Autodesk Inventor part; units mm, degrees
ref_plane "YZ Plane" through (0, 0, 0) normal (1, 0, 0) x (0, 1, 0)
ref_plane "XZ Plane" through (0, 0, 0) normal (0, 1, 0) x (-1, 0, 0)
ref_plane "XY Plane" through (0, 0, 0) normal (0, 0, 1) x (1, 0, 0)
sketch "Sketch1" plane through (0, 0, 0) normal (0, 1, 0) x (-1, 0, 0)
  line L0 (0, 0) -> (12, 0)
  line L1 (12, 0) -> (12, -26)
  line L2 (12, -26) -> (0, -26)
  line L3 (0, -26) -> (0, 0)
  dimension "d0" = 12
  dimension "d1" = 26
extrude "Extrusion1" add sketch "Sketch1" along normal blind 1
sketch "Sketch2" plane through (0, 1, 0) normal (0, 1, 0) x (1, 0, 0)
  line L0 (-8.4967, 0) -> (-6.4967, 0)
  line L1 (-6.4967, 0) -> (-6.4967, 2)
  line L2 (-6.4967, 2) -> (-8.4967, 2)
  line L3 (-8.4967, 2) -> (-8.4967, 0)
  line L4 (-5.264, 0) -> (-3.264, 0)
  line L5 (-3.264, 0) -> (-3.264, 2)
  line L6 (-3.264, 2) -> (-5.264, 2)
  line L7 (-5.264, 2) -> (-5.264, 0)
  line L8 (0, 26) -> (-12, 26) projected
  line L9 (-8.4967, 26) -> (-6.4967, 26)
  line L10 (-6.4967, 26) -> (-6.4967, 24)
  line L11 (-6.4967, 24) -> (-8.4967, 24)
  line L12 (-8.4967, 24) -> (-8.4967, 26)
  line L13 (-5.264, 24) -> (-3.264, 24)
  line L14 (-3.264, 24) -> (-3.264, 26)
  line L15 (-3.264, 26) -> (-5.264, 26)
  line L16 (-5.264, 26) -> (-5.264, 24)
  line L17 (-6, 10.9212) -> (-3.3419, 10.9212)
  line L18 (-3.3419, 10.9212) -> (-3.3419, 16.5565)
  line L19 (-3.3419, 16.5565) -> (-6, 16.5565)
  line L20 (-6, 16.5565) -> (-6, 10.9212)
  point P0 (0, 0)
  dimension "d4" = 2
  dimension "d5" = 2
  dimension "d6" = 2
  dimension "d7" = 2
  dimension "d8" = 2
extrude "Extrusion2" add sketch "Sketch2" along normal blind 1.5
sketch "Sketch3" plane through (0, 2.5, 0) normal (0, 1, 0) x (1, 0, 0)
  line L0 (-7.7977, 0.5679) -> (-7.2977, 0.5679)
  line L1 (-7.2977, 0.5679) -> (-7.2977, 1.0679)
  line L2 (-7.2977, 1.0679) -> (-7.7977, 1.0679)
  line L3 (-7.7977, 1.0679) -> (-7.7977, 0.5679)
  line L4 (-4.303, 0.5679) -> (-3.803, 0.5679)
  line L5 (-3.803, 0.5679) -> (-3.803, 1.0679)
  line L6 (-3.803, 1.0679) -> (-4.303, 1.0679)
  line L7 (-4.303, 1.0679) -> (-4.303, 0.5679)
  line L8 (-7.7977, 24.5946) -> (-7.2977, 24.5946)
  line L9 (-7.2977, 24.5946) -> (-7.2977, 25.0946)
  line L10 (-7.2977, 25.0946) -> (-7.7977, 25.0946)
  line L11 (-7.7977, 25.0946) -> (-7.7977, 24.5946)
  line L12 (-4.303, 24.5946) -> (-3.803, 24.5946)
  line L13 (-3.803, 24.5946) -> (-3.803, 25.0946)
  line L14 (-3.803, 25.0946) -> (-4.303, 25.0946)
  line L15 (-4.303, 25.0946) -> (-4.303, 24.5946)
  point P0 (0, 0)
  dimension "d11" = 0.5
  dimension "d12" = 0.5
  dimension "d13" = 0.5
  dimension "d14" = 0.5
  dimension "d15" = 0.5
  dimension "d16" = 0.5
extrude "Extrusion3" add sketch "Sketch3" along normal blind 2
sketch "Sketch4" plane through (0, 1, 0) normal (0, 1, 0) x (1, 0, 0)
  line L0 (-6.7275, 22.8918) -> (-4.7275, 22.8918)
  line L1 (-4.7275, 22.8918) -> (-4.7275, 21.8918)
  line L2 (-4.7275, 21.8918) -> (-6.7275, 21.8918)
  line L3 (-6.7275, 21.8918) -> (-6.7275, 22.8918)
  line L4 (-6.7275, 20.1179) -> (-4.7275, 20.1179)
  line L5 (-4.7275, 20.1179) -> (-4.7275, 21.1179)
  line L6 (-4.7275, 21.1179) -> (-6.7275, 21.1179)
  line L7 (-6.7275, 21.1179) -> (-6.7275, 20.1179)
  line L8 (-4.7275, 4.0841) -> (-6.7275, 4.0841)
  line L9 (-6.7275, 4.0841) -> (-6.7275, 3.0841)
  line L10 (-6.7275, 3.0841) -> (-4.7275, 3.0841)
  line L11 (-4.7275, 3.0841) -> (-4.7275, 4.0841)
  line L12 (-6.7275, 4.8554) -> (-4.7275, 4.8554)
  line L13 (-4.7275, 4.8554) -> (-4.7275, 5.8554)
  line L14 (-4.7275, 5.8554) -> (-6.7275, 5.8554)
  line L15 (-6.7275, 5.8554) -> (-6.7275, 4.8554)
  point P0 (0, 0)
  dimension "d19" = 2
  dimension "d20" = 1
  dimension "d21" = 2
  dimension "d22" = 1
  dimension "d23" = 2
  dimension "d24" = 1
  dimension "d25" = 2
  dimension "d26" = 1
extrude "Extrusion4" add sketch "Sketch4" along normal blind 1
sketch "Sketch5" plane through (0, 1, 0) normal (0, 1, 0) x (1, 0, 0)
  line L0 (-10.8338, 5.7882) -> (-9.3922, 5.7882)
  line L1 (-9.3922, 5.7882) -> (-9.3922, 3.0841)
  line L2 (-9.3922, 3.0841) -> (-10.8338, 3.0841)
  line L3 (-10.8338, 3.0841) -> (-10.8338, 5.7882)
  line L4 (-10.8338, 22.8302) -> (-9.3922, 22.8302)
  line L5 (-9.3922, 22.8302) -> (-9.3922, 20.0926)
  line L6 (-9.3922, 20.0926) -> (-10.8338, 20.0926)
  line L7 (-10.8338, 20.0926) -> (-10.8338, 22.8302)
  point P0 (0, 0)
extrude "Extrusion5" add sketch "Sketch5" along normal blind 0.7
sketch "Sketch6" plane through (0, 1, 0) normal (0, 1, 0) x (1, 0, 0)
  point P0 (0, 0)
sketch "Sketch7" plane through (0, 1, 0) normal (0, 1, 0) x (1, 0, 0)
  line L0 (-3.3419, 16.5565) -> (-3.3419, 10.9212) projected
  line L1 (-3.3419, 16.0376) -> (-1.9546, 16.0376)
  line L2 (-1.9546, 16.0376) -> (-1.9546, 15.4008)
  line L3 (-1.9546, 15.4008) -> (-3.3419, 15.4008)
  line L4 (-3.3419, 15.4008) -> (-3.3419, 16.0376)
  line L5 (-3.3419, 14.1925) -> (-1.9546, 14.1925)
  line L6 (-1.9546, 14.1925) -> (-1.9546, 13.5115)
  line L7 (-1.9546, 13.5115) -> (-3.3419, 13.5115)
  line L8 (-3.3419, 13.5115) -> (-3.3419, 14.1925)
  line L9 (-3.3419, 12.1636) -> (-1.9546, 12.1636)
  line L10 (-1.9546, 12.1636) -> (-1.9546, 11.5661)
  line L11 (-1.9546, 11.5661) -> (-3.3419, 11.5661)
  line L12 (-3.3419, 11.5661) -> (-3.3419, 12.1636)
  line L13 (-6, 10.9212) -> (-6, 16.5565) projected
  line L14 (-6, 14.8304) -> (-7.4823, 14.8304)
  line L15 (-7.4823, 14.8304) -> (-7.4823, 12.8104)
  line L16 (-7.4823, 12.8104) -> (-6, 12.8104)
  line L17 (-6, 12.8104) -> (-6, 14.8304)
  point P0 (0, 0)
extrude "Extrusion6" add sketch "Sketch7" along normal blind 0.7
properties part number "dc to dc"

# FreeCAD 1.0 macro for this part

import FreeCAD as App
import Part
import Sketcher

V = App.Vector
Q = App.Units.Quantity


def add_polygon(sketch, points):
    """Adds a closed chain of lines whose ends are joined by coincident constraints."""
    first, n = sketch.GeometryCount, len(points)
    for a, b in zip(points, points[1:] + points[:1]):
        sketch.addGeometry(Part.LineSegment(App.Vector(*a, 0), App.Vector(*b, 0)), False)
    for i in range(n):
        sketch.addConstraint(Sketcher.Constraint("Coincident", first + i, 2, first + (i + 1) % n, 1))

doc = App.newDocument("Part")
body = doc.addObject("PartDesign::Body", "Body")

# Sketch on XZ plane
sketch1 = doc.addObject("Sketcher::SketchObject", "Sketch")
body.addObject(sketch1)
sketch1.AttachmentSupport = (doc.XZ_Plane, [""])
sketch1.MapMode = "FlatFace"
add_polygon(sketch1, [(-12, 0), (0, 0), (0, -26), (-12, -26)])  # lines 0-3
sketch1.addConstraint([
    Sketcher.Constraint("Horizontal", 0),
    Sketcher.Constraint("Vertical", 1),
    Sketcher.Constraint("Horizontal", 2),
    Sketcher.Constraint("Vertical", 3),
    Sketcher.Constraint("Coincident", 0, 2, -1, 1),
    Sketcher.Constraint("DistanceX", 0, 1, 0, 2, Q("12 mm")),
    Sketcher.Constraint("DistanceY", 1, 2, 1, 1, Q("26 mm")),
])
pad1 = doc.addObject("PartDesign::Pad", "Pad")
body.addObject(pad1)
pad1.Profile = sketch1
pad1.Length = 1
pad1.Reversed = True

# Sketch on XZ plane
sketch2 = doc.addObject("Sketcher::SketchObject", "Sketch001")
body.addObject(sketch2)
sketch2.AttachmentSupport = (doc.XZ_Plane, [""])
sketch2.MapMode = "FlatFace"
sketch2.AttachmentOffset = App.Placement(V(0, 0, -1), App.Rotation())
add_polygon(sketch2, [(-8.5, -2), (-8.5, 0), (-6.5, 0), (-6.5, -2)])  # lines 0-3
add_polygon(sketch2, [(-5.3, -2), (-5.3, 0), (-3.3, 0), (-3.3, -2)])  # lines 4-7
add_polygon(sketch2, [(-3.3, -24), (-3.3, -26), (-5.3, -26), (-5.3, -24)])  # lines 8-11
add_polygon(sketch2, [(-6.5, -24), (-6.5, -26), (-8.5, -26), (-8.5, -24)])  # lines 12-15
add_polygon(sketch2, [(-6, -16.6), (-6, -10.9), (-3.3, -10.9), (-3.3, -16.6)])  # lines 16-19
sketch2.addConstraint([
    Sketcher.Constraint("Vertical", 0),
    Sketcher.Constraint("Horizontal", 1),
    Sketcher.Constraint("Vertical", 2),
    Sketcher.Constraint("Horizontal", 3),
    Sketcher.Constraint("Vertical", 4),
    Sketcher.Constraint("Horizontal", 5),
    Sketcher.Constraint("Vertical", 6),
    Sketcher.Constraint("Horizontal", 7),
    Sketcher.Constraint("Vertical", 8),
    Sketcher.Constraint("Horizontal", 9),
    Sketcher.Constraint("Vertical", 10),
    Sketcher.Constraint("Horizontal", 11),
    Sketcher.Constraint("Vertical", 12),
    Sketcher.Constraint("Horizontal", 13),
    Sketcher.Constraint("Vertical", 14),
    Sketcher.Constraint("Horizontal", 15),
    Sketcher.Constraint("Vertical", 16),
    Sketcher.Constraint("Horizontal", 17),
    Sketcher.Constraint("Vertical", 18),
    Sketcher.Constraint("Horizontal", 19),
    Sketcher.Constraint("PointOnObject", 0, 2, -1),
    Sketcher.Constraint("PointOnObject", 4, 2, -1),
    Sketcher.Constraint("Horizontal", 3, 2, 6, 2),
    Sketcher.Constraint("Horizontal", 9, 2, 12, 2),
    Sketcher.Constraint("Horizontal", 11, 2, 14, 2),
    Sketcher.Constraint("Vertical", 6, 2, 8, 2),
    Sketcher.Constraint("Vertical", 7, 2, 9, 2),
    Sketcher.Constraint("Vertical", 2, 2, 12, 2),
    Sketcher.Constraint("Vertical", 3, 2, 13, 2),
    Sketcher.Constraint("Equal", 3, 5),
    Sketcher.Constraint("Equal", 15, 0),
    Sketcher.Constraint("Equal", 6, 8),
    Sketcher.Constraint("DistanceX", 1, 1, 1, 2, Q("2 mm")),
    Sketcher.Constraint("DistanceY", 8, 2, -1, 1, Q("26 mm")),
    Sketcher.Constraint("DistanceX", 16, 2, -1, 1, Q("6 mm")),
    Sketcher.Constraint("DistanceX", 17, 1, 17, 2, Q("2.658 mm")),
    Sketcher.Constraint("DistanceY", 16, 1, 16, 2, Q("5.6353 mm")),
    Sketcher.Constraint("DistanceX", 4, 2, -1, 1, Q("5.264 mm")),
    Sketcher.Constraint("DistanceX", 0, 2, -1, 1, Q("8.4967 mm")),
    Sketcher.Constraint("DistanceY", 16, 2, -1, 1, Q("10.9212 mm")),
])
pad2 = doc.addObject("PartDesign::Pad", "Pad001")
body.addObject(pad2)
pad2.Profile = sketch2
pad2.Length = 1.5
pad2.Reversed = True

# Sketch on XZ plane
sketch3 = doc.addObject("Sketcher::SketchObject", "Sketch002")
body.addObject(sketch3)
sketch3.AttachmentSupport = (doc.XZ_Plane, [""])
sketch3.MapMode = "FlatFace"
sketch3.AttachmentOffset = App.Placement(V(0, 0, -2.5), App.Rotation())
add_polygon(sketch3, [(-7.8, -1.1), (-7.8, -0.6), (-7.3, -0.6), (-7.3, -1.1)])  # lines 0-3
add_polygon(sketch3, [(-4.3, -1.1), (-4.3, -0.6), (-3.8, -0.6), (-3.8, -1.1)])  # lines 4-7
add_polygon(sketch3, [(-7.8, -25.1), (-7.8, -24.6), (-7.3, -24.6), (-7.3, -25.1)])  # lines 8-11
add_polygon(sketch3, [(-4.3, -25.1), (-4.3, -24.6), (-3.8, -24.6), (-3.8, -25.1)])  # lines 12-15
sketch3.addConstraint([
    Sketcher.Constraint("Vertical", 0),
    Sketcher.Constraint("Horizontal", 1),
    Sketcher.Constraint("Vertical", 2),
    Sketcher.Constraint("Horizontal", 3),
    Sketcher.Constraint("Vertical", 4),
    Sketcher.Constraint("Horizontal", 5),
    Sketcher.Constraint("Vertical", 6),
    Sketcher.Constraint("Horizontal", 7),
    Sketcher.Constraint("Vertical", 8),
    Sketcher.Constraint("Horizontal", 9),
    Sketcher.Constraint("Vertical", 10),
    Sketcher.Constraint("Horizontal", 11),
    Sketcher.Constraint("Vertical", 12),
    Sketcher.Constraint("Horizontal", 13),
    Sketcher.Constraint("Vertical", 14),
    Sketcher.Constraint("Horizontal", 15),
    Sketcher.Constraint("Horizontal", 1, 2, 4, 2),
    Sketcher.Constraint("Horizontal", 3, 2, 6, 2),
    Sketcher.Constraint("Horizontal", 9, 2, 12, 2),
    Sketcher.Constraint("Horizontal", 11, 2, 14, 2),
    Sketcher.Constraint("Vertical", 3, 2, 8, 2),
    Sketcher.Constraint("Vertical", 2, 2, 9, 2),
    Sketcher.Constraint("Vertical", 7, 2, 12, 2),
    Sketcher.Constraint("Vertical", 6, 2, 13, 2),
    Sketcher.Constraint("Equal", 3, 5),
    Sketcher.Constraint("Equal", 15, 0),
    Sketcher.Constraint("Equal", 6, 8),
    Sketcher.Constraint("DistanceX", 1, 1, 1, 2, Q("0.5 mm")),
    Sketcher.Constraint("DistanceY", 0, 2, -1, 1, Q("0.568 mm")),
    Sketcher.Constraint("DistanceX", 4, 2, -1, 1, Q("4.303 mm")),
    Sketcher.Constraint("DistanceX", 0, 2, -1, 1, Q("7.7977 mm")),
    Sketcher.Constraint("DistanceY", 8, 2, -1, 1, Q("24.5946 mm")),
])
pad3 = doc.addObject("PartDesign::Pad", "Pad002")
body.addObject(pad3)
pad3.Profile = sketch3
pad3.Length = 2
pad3.Reversed = True

# Sketch on XZ plane
sketch4 = doc.addObject("Sketcher::SketchObject", "Sketch003")
body.addObject(sketch4)
sketch4.AttachmentSupport = (doc.XZ_Plane, [""])
sketch4.MapMode = "FlatFace"
sketch4.AttachmentOffset = App.Placement(V(0, 0, -1), App.Rotation())
add_polygon(sketch4, [(-4.7, -22.9), (-6.7, -22.9), (-6.7, -21.9), (-4.7, -21.9)])  # lines 0-3
add_polygon(sketch4, [(-6.7, -21.1), (-6.7, -20.1), (-4.7, -20.1), (-4.7, -21.1)])  # lines 4-7
add_polygon(sketch4, [(-4.7, -3.1), (-4.7, -4.1), (-6.7, -4.1), (-6.7, -3.1)])  # lines 8-11
add_polygon(sketch4, [(-6.7, -5.9), (-6.7, -4.9), (-4.7, -4.9), (-4.7, -5.9)])  # lines 12-15
sketch4.addConstraint([
    Sketcher.Constraint("Horizontal", 0),
    Sketcher.Constraint("Vertical", 1),
    Sketcher.Constraint("Horizontal", 2),
    Sketcher.Constraint("Vertical", 3),
    Sketcher.Constraint("Vertical", 4),
    Sketcher.Constraint("Horizontal", 5),
    Sketcher.Constraint("Vertical", 6),
    Sketcher.Constraint("Horizontal", 7),
    Sketcher.Constraint("Vertical", 8),
    Sketcher.Constraint("Horizontal", 9),
    Sketcher.Constraint("Vertical", 10),
    Sketcher.Constraint("Horizontal", 11),
    Sketcher.Constraint("Vertical", 12),
    Sketcher.Constraint("Horizontal", 13),
    Sketcher.Constraint("Vertical", 14),
    Sketcher.Constraint("Horizontal", 15),
    Sketcher.Constraint("Vertical", 1, 2, 4, 2),
    Sketcher.Constraint("Vertical", 3, 2, 5, 2),
    Sketcher.Constraint("Vertical", 6, 2, 8, 2),
    Sketcher.Constraint("Vertical", 7, 2, 9, 2),
    Sketcher.Constraint("Vertical", 10, 2, 12, 2),
    Sketcher.Constraint("Vertical", 11, 2, 13, 2),
    Sketcher.Constraint("Equal", 3, 4),
    Sketcher.Constraint("Equal", 6, 8),
    Sketcher.Constraint("Equal", 10, 12),
    Sketcher.Constraint("DistanceX", 0, 2, 0, 1, Q("2 mm")),
    Sketcher.Constraint("DistanceY", 1, 1, 1, 2, Q("1 mm")),
    Sketcher.Constraint("DistanceY", 4, 2, -1, 1, Q("20.118 mm")),
    Sketcher.Constraint("DistanceY", 8, 2, -1, 1, Q("4.084 mm")),
    Sketcher.Constraint("DistanceY", 1, 2, 4, 2, Q("1.774 mm")),
    Sketcher.Constraint("DistanceX", 0, 2, -1, 1, Q("6.7275 mm")),
    Sketcher.Constraint("DistanceY", 12, 2, -1, 1, Q("4.8554 mm")),
])
pad4 = doc.addObject("PartDesign::Pad", "Pad003")
body.addObject(pad4)
pad4.Profile = sketch4
pad4.Length = 1
pad4.Reversed = True

# Sketch on XZ plane
sketch5 = doc.addObject("Sketcher::SketchObject", "Sketch004")
body.addObject(sketch5)
sketch5.AttachmentSupport = (doc.XZ_Plane, [""])
sketch5.MapMode = "FlatFace"
sketch5.AttachmentOffset = App.Placement(V(0, 0, -1), App.Rotation())
add_polygon(sketch5, [(-9.4, -5.8), (-10.8, -5.8), (-10.8, -3.1), (-9.4, -3.1)])  # lines 0-3
add_polygon(sketch5, [(-9.4, -22.8), (-10.8, -22.8), (-10.8, -20.1), (-9.4, -20.1)])  # lines 4-7
sketch5.addConstraint([
    Sketcher.Constraint("Horizontal", 0),
    Sketcher.Constraint("Vertical", 1),
    Sketcher.Constraint("Horizontal", 2),
    Sketcher.Constraint("Vertical", 3),
    Sketcher.Constraint("Horizontal", 4),
    Sketcher.Constraint("Vertical", 5),
    Sketcher.Constraint("Horizontal", 6),
    Sketcher.Constraint("Vertical", 7),
    Sketcher.Constraint("Vertical", 1, 2, 4, 2),
    Sketcher.Constraint("Vertical", 3, 2, 6, 2),
    Sketcher.Constraint("DistanceY", 1, 1, 1, 2, Q("2.704 mm")),
    Sketcher.Constraint("DistanceX", 0, 2, 0, 1, Q("1.4416 mm")),
    Sketcher.Constraint("DistanceY", 5, 1, 5, 2, Q("2.7376 mm")),
    Sketcher.Constraint("DistanceY", 1, 2, -1, 1, Q("3.084 mm")),
    Sketcher.Constraint("DistanceY", 4, 2, 0, 2, Q("17.042 mm")),
    Sketcher.Constraint("DistanceX", 0, 2, -1, 1, Q("10.8338 mm")),
])
pad5 = doc.addObject("PartDesign::Pad", "Pad004")
body.addObject(pad5)
pad5.Profile = sketch5
pad5.Length = 0.7
pad5.Reversed = True

# Sketch on XZ plane
sketch6 = doc.addObject("Sketcher::SketchObject", "Sketch005")
body.addObject(sketch6)
sketch6.AttachmentSupport = (doc.XZ_Plane, [""])
sketch6.MapMode = "FlatFace"
sketch6.AttachmentOffset = App.Placement(V(0, 0, -1), App.Rotation())
add_polygon(sketch6, [(-2, -16), (-3.3, -16), (-3.3, -15.4), (-2, -15.4)])  # lines 0-3
add_polygon(sketch6, [(-2, -12.2), (-3.3, -12.2), (-3.3, -11.6), (-2, -11.6)])  # lines 4-7
add_polygon(sketch6, [(-2, -14.2), (-3.3, -14.2), (-3.3, -13.5), (-2, -13.5)])  # lines 8-11
add_polygon(sketch6, [(-7.5, -12.8), (-6, -12.8), (-6, -14.8), (-7.5, -14.8)])  # lines 12-15
sketch6.addConstraint([
    Sketcher.Constraint("Horizontal", 0),
    Sketcher.Constraint("Vertical", 1),
    Sketcher.Constraint("Horizontal", 2),
    Sketcher.Constraint("Vertical", 3),
    Sketcher.Constraint("Horizontal", 4),
    Sketcher.Constraint("Vertical", 5),
    Sketcher.Constraint("Horizontal", 6),
    Sketcher.Constraint("Vertical", 7),
    Sketcher.Constraint("Horizontal", 8),
    Sketcher.Constraint("Vertical", 9),
    Sketcher.Constraint("Horizontal", 10),
    Sketcher.Constraint("Vertical", 11),
    Sketcher.Constraint("Horizontal", 12),
    Sketcher.Constraint("Vertical", 13),
    Sketcher.Constraint("Horizontal", 14),
    Sketcher.Constraint("Vertical", 15),
    Sketcher.Constraint("Vertical", 1, 2, 4, 2),
    Sketcher.Constraint("Vertical", 3, 2, 6, 2),
    Sketcher.Constraint("Vertical", 5, 2, 8, 2),
    Sketcher.Constraint("Vertical", 7, 2, 10, 2),
    Sketcher.Constraint("DistanceX", 12, 2, -1, 1, Q("6 mm")),
    Sketcher.Constraint("DistanceY", 13, 2, 13, 1, Q("2.02 mm")),
    Sketcher.Constraint("DistanceY", 9, 1, 9, 2, Q("0.681 mm")),
    Sketcher.Constraint("DistanceX", 0, 2, 0, 1, Q("1.3873 mm")),
    Sketcher.Constraint("DistanceX", 12, 1, 12, 2, Q("1.4823 mm")),
    Sketcher.Constraint("DistanceY", 1, 1, 1, 2, Q("0.6368 mm")),
    Sketcher.Constraint("DistanceY", 5, 1, 5, 2, Q("0.5975 mm")),
    Sketcher.Constraint("DistanceX", 0, 2, -1, 1, Q("3.342 mm")),
    Sketcher.Constraint("DistanceY", 5, 2, -1, 1, Q("11.566 mm")),
    Sketcher.Constraint("DistanceY", 0, 2, 4, 2, Q("3.874 mm")),
    Sketcher.Constraint("DistanceY", 0, 2, 8, 2, Q("1.845 mm")),
    Sketcher.Constraint("DistanceY", 9, 2, 12, 2, Q("0.701 mm")),
])
pad6 = doc.addObject("PartDesign::Pad", "Pad005")
body.addObject(pad6)
pad6.Profile = sketch6
pad6.Length = 0.7
pad6.Reversed = True

doc.recompute()
